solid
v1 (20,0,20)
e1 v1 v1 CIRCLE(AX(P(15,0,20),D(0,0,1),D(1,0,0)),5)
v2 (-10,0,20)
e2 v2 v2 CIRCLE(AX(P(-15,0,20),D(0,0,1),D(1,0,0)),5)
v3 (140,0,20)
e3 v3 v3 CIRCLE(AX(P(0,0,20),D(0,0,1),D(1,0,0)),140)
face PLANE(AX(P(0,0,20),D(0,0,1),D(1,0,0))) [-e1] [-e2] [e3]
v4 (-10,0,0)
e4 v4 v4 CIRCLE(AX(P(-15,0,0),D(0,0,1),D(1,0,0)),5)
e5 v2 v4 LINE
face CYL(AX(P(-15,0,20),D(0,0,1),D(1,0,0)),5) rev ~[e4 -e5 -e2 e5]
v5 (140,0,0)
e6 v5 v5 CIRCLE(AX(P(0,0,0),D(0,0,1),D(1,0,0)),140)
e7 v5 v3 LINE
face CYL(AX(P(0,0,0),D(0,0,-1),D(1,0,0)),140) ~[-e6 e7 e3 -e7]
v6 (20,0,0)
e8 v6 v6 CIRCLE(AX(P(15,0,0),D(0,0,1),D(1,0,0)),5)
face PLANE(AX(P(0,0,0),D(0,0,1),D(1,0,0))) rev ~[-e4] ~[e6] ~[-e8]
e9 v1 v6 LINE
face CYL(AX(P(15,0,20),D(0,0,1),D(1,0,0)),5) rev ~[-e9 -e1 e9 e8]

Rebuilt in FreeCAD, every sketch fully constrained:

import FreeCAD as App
import Part
import Sketcher

V = App.Vector

doc = App.newDocument("Part")
body = doc.addObject("PartDesign::Body", "Body")

# Sketch on XY plane
sketch1 = body.newObject("Sketcher::SketchObject", "Sketch")
sketch1.AttachmentSupport = (doc.getObject("XY_Plane"), [""])
sketch1.MapMode = "FlatFace"
sketch1.addGeometry(Part.Circle(V(0, 0, 0), V(0, 0, 1), 140), False)
sketch1.addConstraint([
    Sketcher.Constraint("Coincident", 0, 3, -1, 1),
    Sketcher.Constraint("Diameter", 0, 280.0),
])
pad1 = body.newObject("PartDesign::Pad", "Pad")
pad1.Profile = sketch1
pad1.Length = 20

# Sketch on XY plane
sketch2 = body.newObject("Sketcher::SketchObject", "Sketch001")
sketch2.AttachmentSupport = (doc.getObject("XY_Plane"), [""])
sketch2.MapMode = "FlatFace"
sketch2.AttachmentOffset = App.Placement(V(0, 0, 20), App.Rotation())
sketch2.addGeometry([
    Part.Circle(V(15, 0, 0), V(0, 0, 1), 5),
    Part.Circle(V(-15, 0, 0), V(0, 0, 1), 5),
], False)
sketch2.addConstraint([
    Sketcher.Constraint("Equal", 0, 1),
    Sketcher.Constraint("Symmetric", 0, 3, 1, 3, -1, 1),
    Sketcher.Constraint("PointOnObject", 0, 3, -1),
    Sketcher.Constraint("Diameter", 0, 10.0),
    Sketcher.Constraint("DistanceX", -1, 1, 0, 3, 15.0),
])
pocket1 = body.newObject("PartDesign::Pocket", "Pocket")
pocket1.Profile = sketch2
pocket1.Type = "ThroughAll"

doc.recompute()
